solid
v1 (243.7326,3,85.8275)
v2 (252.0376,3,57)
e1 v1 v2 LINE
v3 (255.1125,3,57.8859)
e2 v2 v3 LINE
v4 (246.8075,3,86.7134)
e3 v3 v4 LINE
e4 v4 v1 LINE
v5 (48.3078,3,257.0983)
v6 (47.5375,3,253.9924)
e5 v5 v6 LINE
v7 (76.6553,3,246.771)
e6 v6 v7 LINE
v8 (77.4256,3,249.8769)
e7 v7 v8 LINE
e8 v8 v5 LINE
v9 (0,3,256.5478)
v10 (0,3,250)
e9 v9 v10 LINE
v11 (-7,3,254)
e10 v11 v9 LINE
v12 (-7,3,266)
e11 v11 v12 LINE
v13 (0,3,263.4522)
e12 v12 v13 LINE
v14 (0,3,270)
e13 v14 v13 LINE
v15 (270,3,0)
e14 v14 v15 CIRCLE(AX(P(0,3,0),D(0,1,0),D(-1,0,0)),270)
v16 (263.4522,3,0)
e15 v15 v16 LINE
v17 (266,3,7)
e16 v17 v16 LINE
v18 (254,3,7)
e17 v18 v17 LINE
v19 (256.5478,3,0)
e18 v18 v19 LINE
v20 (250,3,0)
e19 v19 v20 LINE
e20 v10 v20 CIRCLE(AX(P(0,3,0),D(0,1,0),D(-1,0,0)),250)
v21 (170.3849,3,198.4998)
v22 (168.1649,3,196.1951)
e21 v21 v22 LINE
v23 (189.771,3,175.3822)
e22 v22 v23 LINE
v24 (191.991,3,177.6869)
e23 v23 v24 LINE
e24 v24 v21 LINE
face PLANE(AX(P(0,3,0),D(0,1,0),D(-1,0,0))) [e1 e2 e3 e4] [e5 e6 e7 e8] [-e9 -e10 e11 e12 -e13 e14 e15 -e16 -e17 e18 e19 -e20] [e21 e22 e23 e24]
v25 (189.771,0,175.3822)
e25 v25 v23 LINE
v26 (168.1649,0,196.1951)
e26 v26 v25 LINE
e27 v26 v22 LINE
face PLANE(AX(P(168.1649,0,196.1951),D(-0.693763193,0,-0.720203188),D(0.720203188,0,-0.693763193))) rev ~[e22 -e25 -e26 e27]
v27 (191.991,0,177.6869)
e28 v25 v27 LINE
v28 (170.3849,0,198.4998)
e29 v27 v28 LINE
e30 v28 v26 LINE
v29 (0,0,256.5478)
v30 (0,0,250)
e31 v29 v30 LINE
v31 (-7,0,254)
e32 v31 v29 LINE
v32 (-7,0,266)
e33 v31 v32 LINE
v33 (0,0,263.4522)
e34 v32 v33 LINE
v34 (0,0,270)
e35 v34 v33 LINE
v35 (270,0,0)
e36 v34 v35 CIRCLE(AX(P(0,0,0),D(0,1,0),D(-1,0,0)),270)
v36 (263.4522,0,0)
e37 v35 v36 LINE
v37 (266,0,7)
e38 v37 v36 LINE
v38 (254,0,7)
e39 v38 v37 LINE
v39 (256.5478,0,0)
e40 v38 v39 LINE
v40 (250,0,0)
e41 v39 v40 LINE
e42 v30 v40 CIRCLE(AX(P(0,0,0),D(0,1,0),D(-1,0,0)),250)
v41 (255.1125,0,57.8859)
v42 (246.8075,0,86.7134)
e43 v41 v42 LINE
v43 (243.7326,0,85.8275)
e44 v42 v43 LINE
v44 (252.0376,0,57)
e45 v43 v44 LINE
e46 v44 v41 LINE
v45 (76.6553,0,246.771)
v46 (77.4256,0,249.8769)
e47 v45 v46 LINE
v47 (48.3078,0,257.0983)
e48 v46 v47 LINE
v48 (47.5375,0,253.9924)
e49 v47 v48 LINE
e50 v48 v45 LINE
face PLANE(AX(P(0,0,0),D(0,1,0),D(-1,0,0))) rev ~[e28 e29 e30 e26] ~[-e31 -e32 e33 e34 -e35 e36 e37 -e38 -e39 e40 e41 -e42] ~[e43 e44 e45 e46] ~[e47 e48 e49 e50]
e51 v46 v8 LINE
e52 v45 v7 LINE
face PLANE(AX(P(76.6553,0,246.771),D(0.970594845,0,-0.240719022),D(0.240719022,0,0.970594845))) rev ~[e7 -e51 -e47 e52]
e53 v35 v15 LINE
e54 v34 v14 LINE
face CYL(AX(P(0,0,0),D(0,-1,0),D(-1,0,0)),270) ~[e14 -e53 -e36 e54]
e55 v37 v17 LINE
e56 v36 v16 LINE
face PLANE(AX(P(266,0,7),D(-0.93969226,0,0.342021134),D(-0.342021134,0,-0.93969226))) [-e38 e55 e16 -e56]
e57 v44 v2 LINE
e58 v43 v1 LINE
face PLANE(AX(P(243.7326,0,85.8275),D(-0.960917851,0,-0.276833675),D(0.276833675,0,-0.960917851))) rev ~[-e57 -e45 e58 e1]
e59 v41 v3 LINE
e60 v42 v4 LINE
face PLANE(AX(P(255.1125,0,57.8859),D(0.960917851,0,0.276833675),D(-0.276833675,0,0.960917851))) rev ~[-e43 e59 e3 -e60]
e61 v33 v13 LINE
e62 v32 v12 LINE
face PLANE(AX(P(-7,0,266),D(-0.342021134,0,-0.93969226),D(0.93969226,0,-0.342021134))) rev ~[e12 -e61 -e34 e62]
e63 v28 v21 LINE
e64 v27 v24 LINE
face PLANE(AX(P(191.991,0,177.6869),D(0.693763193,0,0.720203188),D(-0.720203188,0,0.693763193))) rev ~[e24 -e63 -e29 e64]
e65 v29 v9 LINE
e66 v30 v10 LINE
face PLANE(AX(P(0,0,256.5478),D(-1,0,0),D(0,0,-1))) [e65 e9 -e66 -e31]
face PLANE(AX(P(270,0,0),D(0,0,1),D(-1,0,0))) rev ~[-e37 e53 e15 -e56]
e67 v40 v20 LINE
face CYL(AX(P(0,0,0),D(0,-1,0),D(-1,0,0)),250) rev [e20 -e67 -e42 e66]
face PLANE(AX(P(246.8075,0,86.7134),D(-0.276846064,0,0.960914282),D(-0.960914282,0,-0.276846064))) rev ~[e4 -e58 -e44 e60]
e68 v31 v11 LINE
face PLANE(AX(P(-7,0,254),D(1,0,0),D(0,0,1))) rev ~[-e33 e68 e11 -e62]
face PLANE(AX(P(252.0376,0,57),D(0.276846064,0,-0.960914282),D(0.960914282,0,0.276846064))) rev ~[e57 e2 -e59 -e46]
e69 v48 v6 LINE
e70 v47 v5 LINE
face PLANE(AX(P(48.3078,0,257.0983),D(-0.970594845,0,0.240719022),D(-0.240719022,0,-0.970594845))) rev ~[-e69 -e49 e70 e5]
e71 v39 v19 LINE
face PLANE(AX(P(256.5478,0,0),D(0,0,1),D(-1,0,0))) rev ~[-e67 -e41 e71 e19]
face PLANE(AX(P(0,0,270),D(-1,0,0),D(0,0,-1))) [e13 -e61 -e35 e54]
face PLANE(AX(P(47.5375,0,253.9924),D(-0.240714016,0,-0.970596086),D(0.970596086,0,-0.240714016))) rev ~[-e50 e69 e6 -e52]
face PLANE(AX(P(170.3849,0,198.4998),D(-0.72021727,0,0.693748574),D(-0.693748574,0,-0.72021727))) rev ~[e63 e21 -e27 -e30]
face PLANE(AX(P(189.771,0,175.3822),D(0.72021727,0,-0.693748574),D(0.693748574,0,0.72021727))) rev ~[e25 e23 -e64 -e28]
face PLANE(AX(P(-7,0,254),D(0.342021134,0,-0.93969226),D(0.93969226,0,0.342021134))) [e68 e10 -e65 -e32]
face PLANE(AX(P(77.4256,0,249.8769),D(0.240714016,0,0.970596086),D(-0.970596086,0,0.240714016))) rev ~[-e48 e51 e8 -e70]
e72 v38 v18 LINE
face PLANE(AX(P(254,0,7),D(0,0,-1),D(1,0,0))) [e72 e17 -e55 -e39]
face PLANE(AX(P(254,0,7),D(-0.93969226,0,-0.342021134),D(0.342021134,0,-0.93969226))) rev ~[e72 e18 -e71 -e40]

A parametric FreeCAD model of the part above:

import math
import FreeCAD as App
import Part
import Sketcher
from FreeCAD import Vector
Q = App.Units.Quantity

doc = App.newDocument("Part")
body = doc.addObject("PartDesign::Body", "Body")

# Sketch on XZ plane
sketch1 = body.newObject("Sketcher::SketchObject", "Sketch")
sketch1.AttachmentSupport = (doc.getObject("XZ_Plane"), [""])
sketch1.MapMode = "FlatFace"
sketch1.addGeometry(Part.ArcOfCircle(Part.Circle(Vector(0, 0, 0), Vector(0, 0, 1), 250), math.radians(0), math.radians(90)), False)
sketch1.addGeometry(Part.LineSegment(Vector(0, 250, 0), Vector(0, 256.5, 0)), False)
sketch1.addGeometry(Part.LineSegment(Vector(0, 256.5, 0), Vector(-7, 254, 0)), False)
sketch1.addGeometry(Part.LineSegment(Vector(-7, 254, 0), Vector(-7, 266, 0)), False)
sketch1.addGeometry(Part.LineSegment(Vector(-7, 266, 0), Vector(0, 263.5, 0)), False)
sketch1.addGeometry(Part.LineSegment(Vector(0, 263.5, 0), Vector(0, 270, 0)), False)
sketch1.addGeometry(Part.ArcOfCircle(Part.Circle(Vector(0, 0, 0), Vector(0, 0, 1), 270), math.radians(0), math.radians(90)), False)
sketch1.addGeometry(Part.LineSegment(Vector(270, 0, 0), Vector(263.5, 0, 0)), False)
sketch1.addGeometry(Part.LineSegment(Vector(263.5, 0, 0), Vector(266, 7, 0)), False)
sketch1.addGeometry(Part.LineSegment(Vector(266, 7, 0), Vector(254, 7, 0)), False)
sketch1.addGeometry(Part.LineSegment(Vector(254, 7, 0), Vector(256.5, 0, 0)), False)
sketch1.addGeometry(Part.LineSegment(Vector(256.5, 0, 0), Vector(250, 0, 0)), False)
sketch1.addGeometry(Part.LineSegment(Vector(252, 57, 0), Vector(255.1, 57.9, 0)), False)
sketch1.addGeometry(Part.LineSegment(Vector(255.1, 57.9, 0), Vector(246.8, 86.7, 0)), False)
sketch1.addGeometry(Part.LineSegment(Vector(246.8, 86.7, 0), Vector(243.7, 85.8, 0)), False)
sketch1.addGeometry(Part.LineSegment(Vector(243.7, 85.8, 0), Vector(252, 57, 0)), False)
sketch1.addGeometry(Part.LineSegment(Vector(189.8, 175.4, 0), Vector(192, 177.7, 0)), False)
sketch1.addGeometry(Part.LineSegment(Vector(192, 177.7, 0), Vector(170.4, 198.5, 0)), False)
sketch1.addGeometry(Part.LineSegment(Vector(170.4, 198.5, 0), Vector(168.2, 196.2, 0)), False)
sketch1.addGeometry(Part.LineSegment(Vector(168.2, 196.2, 0), Vector(189.8, 175.4, 0)), False)
sketch1.addGeometry(Part.LineSegment(Vector(76.7, 246.8, 0), Vector(77.4, 249.9, 0)), False)
sketch1.addGeometry(Part.LineSegment(Vector(77.4, 249.9, 0), Vector(48.3, 257.1, 0)), False)
sketch1.addGeometry(Part.LineSegment(Vector(48.3, 257.1, 0), Vector(47.5, 254, 0)), False)
sketch1.addGeometry(Part.LineSegment(Vector(47.5, 254, 0), Vector(76.7, 246.8, 0)), False)
sketch1.addConstraint(Sketcher.Constraint("Coincident", 0, 2, 1, 1))
sketch1.addConstraint(Sketcher.Constraint("Coincident", 1, 2, 2, 1))
sketch1.addConstraint(Sketcher.Constraint("Coincident", 2, 2, 3, 1))
sketch1.addConstraint(Sketcher.Constraint("Coincident", 3, 2, 4, 1))
sketch1.addConstraint(Sketcher.Constraint("Coincident", 4, 2, 5, 1))
sketch1.addConstraint(Sketcher.Constraint("Coincident", 5, 2, 6, 2))
sketch1.addConstraint(Sketcher.Constraint("Coincident", 6, 1, 7, 1))
sketch1.addConstraint(Sketcher.Constraint("Coincident", 7, 2, 8, 1))
sketch1.addConstraint(Sketcher.Constraint("Coincident", 8, 2, 9, 1))
sketch1.addConstraint(Sketcher.Constraint("Coincident", 9, 2, 10, 1))
sketch1.addConstraint(Sketcher.Constraint("Coincident", 10, 2, 11, 1))
sketch1.addConstraint(Sketcher.Constraint("Coincident", 11, 2, 0, 1))
sketch1.addConstraint(Sketcher.Constraint("Coincident", 12, 2, 13, 1))
sketch1.addConstraint(Sketcher.Constraint("Coincident", 13, 2, 14, 1))
sketch1.addConstraint(Sketcher.Constraint("Coincident", 14, 2, 15, 1))
sketch1.addConstraint(Sketcher.Constraint("Coincident", 15, 2, 12, 1))
sketch1.addConstraint(Sketcher.Constraint("Coincident", 16, 2, 17, 1))
sketch1.addConstraint(Sketcher.Constraint("Coincident", 17, 2, 18, 1))
sketch1.addConstraint(Sketcher.Constraint("Coincident", 18, 2, 19, 1))
sketch1.addConstraint(Sketcher.Constraint("Coincident", 19, 2, 16, 1))
sketch1.addConstraint(Sketcher.Constraint("Coincident", 20, 2, 21, 1))
sketch1.addConstraint(Sketcher.Constraint("Coincident", 21, 2, 22, 1))
sketch1.addConstraint(Sketcher.Constraint("Coincident", 22, 2, 23, 1))
sketch1.addConstraint(Sketcher.Constraint("Coincident", 23, 2, 20, 1))
sketch1.addConstraint(Sketcher.Constraint("Vertical", 1))
sketch1.addConstraint(Sketcher.Constraint("Vertical", 3))
sketch1.addConstraint(Sketcher.Constraint("Vertical", 5))
sketch1.addConstraint(Sketcher.Constraint("Horizontal", 7))
sketch1.addConstraint(Sketcher.Constraint("Horizontal", 9))
sketch1.addConstraint(Sketcher.Constraint("Horizontal", 11))
sketch1.addConstraint(Sketcher.Constraint("Coincident", 0, 3, -1, 1))
sketch1.addConstraint(Sketcher.Constraint("Coincident", 6, 3, -1, 1))
sketch1.addConstraint(Sketcher.Constraint("PointOnObject", 0, 2, -2))
sketch1.addConstraint(Sketcher.Constraint("PointOnObject", 4, 2, -2))
sketch1.addConstraint(Sketcher.Constraint("PointOnObject", 6, 1, -1))
sketch1.addConstraint(Sketcher.Constraint("PointOnObject", 10, 2, -1))
sketch1.addConstraint(Sketcher.Constraint("Perpendicular", 4, 8))
sketch1.addConstraint(Sketcher.Constraint("Perpendicular", 2, 10))
sketch1.addConstraint(Sketcher.Constraint("Perpendicular", 12, 13))
sketch1.addConstraint(Sketcher.Constraint("Perpendicular", 13, 14))
sketch1.addConstraint(Sketcher.Constraint("Perpendicular", 14, 15))
sketch1.addConstraint(Sketcher.Constraint("Perpendicular", 16, 17))
sketch1.addConstraint(Sketcher.Constraint("Perpendicular", 17, 18))
sketch1.addConstraint(Sketcher.Constraint("Perpendicular", 18, 19))
sketch1.addConstraint(Sketcher.Constraint("Perpendicular", 20, 21))
sketch1.addConstraint(Sketcher.Constraint("Perpendicular", 21, 22))
sketch1.addConstraint(Sketcher.Constraint("Perpendicular", 22, 23))
sketch1.addConstraint(Sketcher.Constraint("Equal", 7, 11))
sketch1.addConstraint(Sketcher.Constraint("Equal", 11, 1))
sketch1.addConstraint(Sketcher.Constraint("Equal", 9, 3))
sketch1.addConstraint(Sketcher.Constraint("Equal", 1, 5))
sketch1.addConstraint(Sketcher.Constraint("Equal", 2, 4))
sketch1.addConstraint(Sketcher.Constraint("Equal", 14, 16))
sketch1.addConstraint(Sketcher.Constraint("Equal", 15, 17))
sketch1.addConstraint(Sketcher.Constraint("Equal", 18, 20))
sketch1.addConstraint(Sketcher.Constraint("Equal", 19, 21))
sketch1.addConstraint(Sketcher.Constraint("Radius", 0, 250.0))
sketch1.addConstraint(Sketcher.Constraint("Radius", 6, 270.0))
sketch1.addConstraint(Sketcher.Constraint("DistanceX", 9, 2, 9, 1, 12.0))
sketch1.addConstraint(Sketcher.Constraint("Angle", 8, Q("70 deg")))
sketch1.addConstraint(Sketcher.Constraint("Distance", 13, 30.0))
sketch1.addConstraint(Sketcher.Constraint("DistanceX", 2, 2, -1, 1, 7.0))
sketch1.addConstraint(Sketcher.Constraint("DistanceY", 9, 2, 15, 2, 50.0))
sketch1.addConstraint(Sketcher.Constraint("Distance", 12, 3.2))
sketch1.addConstraint(Sketcher.Constraint("Angle", 20, Q("76.071 deg")))
sketch1.addConstraint(Sketcher.Constraint("DistanceX", 14, 2, 12, 2, 11.38))
sketch1.addConstraint(Sketcher.Constraint("DistanceX", 18, 2, 17, 2, 2.22))
sketch1.addConstraint(Sketcher.Constraint("DistanceX", -1, 1, 16, 2, 191.991))
sketch1.addConstraint(Sketcher.Constraint("DistanceY", -1, 1, 16, 2, 177.687))
sketch1.addConstraint(Sketcher.Constraint("DistanceY", -1, 1, 20, 2, 249.877))
sketch1.addConstraint(Sketcher.Constraint("DistanceX", -1, 1, 12, 2, 255.1125))
sketch1.addConstraint(Sketcher.Constraint("DistanceX", -1, 1, 20, 2, 77.4256))
pad1 = body.newObject("PartDesign::Pad", "Pad")
pad1.Profile = sketch1
pad1.Length = 3
pad1.Reversed = True

doc.recompute()
